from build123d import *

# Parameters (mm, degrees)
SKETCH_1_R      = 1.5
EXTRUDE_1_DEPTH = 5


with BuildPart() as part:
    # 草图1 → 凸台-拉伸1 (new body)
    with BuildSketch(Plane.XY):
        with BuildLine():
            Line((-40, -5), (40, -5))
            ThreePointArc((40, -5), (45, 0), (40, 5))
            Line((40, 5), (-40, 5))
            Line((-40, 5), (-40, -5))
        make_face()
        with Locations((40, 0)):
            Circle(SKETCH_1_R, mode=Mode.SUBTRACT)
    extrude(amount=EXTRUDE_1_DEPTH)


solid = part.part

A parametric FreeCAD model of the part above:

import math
import FreeCAD as App
import Part
import Sketcher
Q = App.Units.Quantity

doc = App.newDocument("Part")
body = doc.addObject("PartDesign::Body", "Body")

sketch1 = body.newObject("Sketcher::SketchObject", "Sketch")
sketch1.AttachmentSupport = (doc.getObject("XY_Plane"), [""])
sketch1.MapMode = "FlatFace"
sketch1.addGeometry(Part.LineSegment(App.Vector(-40, -5, 0), App.Vector(40, -5, 0)), False)
sketch1.addGeometry(Part.ArcOfCircle(Part.Circle(App.Vector(40, 0, 0), App.Vector(0, 0, 1), 5), math.radians(-90), math.radians(90)), False)
sketch1.addGeometry(Part.LineSegment(App.Vector(40, 5, 0), App.Vector(-40, 5, 0)), False)
sketch1.addGeometry(Part.LineSegment(App.Vector(-40, 5, 0), App.Vector(-40, -5, 0)), False)
sketch1.addGeometry(Part.Circle(App.Vector(40, 0, 0), App.Vector(0, 0, 1), 1.5), False)
sketch1.addConstraint(Sketcher.Constraint("Tangent", 0, 2, 1, 1))
sketch1.addConstraint(Sketcher.Constraint("Tangent", 1, 2, 2, 1))
sketch1.addConstraint(Sketcher.Constraint("Coincident", 2, 2, 3, 1))
sketch1.addConstraint(Sketcher.Constraint("Coincident", 3, 2, 0, 1))
sketch1.addConstraint(Sketcher.Constraint("Horizontal", 0))
sketch1.addConstraint(Sketcher.Constraint("Horizontal", 2))
sketch1.addConstraint(Sketcher.Constraint("Vertical", 3))
sketch1.addConstraint(Sketcher.Constraint("Coincident", 4, 3, 1, 3))
sketch1.addConstraint(Sketcher.Constraint("Symmetric", 0, 2, 2, 2, -1, 1))
sketch1.addConstraint(Sketcher.Constraint("Diameter", 4, Q("3 mm")))
sketch1.addConstraint(Sketcher.Constraint("Radius", 1, Q("5 mm")))
sketch1.addConstraint(Sketcher.Constraint("DistanceX", 0, 1, 0, 2, Q("80 mm")))
pad1 = body.newObject("PartDesign::Pad", "Pad")
pad1.Profile = sketch1
pad1.Length = 5

doc.recompute()
